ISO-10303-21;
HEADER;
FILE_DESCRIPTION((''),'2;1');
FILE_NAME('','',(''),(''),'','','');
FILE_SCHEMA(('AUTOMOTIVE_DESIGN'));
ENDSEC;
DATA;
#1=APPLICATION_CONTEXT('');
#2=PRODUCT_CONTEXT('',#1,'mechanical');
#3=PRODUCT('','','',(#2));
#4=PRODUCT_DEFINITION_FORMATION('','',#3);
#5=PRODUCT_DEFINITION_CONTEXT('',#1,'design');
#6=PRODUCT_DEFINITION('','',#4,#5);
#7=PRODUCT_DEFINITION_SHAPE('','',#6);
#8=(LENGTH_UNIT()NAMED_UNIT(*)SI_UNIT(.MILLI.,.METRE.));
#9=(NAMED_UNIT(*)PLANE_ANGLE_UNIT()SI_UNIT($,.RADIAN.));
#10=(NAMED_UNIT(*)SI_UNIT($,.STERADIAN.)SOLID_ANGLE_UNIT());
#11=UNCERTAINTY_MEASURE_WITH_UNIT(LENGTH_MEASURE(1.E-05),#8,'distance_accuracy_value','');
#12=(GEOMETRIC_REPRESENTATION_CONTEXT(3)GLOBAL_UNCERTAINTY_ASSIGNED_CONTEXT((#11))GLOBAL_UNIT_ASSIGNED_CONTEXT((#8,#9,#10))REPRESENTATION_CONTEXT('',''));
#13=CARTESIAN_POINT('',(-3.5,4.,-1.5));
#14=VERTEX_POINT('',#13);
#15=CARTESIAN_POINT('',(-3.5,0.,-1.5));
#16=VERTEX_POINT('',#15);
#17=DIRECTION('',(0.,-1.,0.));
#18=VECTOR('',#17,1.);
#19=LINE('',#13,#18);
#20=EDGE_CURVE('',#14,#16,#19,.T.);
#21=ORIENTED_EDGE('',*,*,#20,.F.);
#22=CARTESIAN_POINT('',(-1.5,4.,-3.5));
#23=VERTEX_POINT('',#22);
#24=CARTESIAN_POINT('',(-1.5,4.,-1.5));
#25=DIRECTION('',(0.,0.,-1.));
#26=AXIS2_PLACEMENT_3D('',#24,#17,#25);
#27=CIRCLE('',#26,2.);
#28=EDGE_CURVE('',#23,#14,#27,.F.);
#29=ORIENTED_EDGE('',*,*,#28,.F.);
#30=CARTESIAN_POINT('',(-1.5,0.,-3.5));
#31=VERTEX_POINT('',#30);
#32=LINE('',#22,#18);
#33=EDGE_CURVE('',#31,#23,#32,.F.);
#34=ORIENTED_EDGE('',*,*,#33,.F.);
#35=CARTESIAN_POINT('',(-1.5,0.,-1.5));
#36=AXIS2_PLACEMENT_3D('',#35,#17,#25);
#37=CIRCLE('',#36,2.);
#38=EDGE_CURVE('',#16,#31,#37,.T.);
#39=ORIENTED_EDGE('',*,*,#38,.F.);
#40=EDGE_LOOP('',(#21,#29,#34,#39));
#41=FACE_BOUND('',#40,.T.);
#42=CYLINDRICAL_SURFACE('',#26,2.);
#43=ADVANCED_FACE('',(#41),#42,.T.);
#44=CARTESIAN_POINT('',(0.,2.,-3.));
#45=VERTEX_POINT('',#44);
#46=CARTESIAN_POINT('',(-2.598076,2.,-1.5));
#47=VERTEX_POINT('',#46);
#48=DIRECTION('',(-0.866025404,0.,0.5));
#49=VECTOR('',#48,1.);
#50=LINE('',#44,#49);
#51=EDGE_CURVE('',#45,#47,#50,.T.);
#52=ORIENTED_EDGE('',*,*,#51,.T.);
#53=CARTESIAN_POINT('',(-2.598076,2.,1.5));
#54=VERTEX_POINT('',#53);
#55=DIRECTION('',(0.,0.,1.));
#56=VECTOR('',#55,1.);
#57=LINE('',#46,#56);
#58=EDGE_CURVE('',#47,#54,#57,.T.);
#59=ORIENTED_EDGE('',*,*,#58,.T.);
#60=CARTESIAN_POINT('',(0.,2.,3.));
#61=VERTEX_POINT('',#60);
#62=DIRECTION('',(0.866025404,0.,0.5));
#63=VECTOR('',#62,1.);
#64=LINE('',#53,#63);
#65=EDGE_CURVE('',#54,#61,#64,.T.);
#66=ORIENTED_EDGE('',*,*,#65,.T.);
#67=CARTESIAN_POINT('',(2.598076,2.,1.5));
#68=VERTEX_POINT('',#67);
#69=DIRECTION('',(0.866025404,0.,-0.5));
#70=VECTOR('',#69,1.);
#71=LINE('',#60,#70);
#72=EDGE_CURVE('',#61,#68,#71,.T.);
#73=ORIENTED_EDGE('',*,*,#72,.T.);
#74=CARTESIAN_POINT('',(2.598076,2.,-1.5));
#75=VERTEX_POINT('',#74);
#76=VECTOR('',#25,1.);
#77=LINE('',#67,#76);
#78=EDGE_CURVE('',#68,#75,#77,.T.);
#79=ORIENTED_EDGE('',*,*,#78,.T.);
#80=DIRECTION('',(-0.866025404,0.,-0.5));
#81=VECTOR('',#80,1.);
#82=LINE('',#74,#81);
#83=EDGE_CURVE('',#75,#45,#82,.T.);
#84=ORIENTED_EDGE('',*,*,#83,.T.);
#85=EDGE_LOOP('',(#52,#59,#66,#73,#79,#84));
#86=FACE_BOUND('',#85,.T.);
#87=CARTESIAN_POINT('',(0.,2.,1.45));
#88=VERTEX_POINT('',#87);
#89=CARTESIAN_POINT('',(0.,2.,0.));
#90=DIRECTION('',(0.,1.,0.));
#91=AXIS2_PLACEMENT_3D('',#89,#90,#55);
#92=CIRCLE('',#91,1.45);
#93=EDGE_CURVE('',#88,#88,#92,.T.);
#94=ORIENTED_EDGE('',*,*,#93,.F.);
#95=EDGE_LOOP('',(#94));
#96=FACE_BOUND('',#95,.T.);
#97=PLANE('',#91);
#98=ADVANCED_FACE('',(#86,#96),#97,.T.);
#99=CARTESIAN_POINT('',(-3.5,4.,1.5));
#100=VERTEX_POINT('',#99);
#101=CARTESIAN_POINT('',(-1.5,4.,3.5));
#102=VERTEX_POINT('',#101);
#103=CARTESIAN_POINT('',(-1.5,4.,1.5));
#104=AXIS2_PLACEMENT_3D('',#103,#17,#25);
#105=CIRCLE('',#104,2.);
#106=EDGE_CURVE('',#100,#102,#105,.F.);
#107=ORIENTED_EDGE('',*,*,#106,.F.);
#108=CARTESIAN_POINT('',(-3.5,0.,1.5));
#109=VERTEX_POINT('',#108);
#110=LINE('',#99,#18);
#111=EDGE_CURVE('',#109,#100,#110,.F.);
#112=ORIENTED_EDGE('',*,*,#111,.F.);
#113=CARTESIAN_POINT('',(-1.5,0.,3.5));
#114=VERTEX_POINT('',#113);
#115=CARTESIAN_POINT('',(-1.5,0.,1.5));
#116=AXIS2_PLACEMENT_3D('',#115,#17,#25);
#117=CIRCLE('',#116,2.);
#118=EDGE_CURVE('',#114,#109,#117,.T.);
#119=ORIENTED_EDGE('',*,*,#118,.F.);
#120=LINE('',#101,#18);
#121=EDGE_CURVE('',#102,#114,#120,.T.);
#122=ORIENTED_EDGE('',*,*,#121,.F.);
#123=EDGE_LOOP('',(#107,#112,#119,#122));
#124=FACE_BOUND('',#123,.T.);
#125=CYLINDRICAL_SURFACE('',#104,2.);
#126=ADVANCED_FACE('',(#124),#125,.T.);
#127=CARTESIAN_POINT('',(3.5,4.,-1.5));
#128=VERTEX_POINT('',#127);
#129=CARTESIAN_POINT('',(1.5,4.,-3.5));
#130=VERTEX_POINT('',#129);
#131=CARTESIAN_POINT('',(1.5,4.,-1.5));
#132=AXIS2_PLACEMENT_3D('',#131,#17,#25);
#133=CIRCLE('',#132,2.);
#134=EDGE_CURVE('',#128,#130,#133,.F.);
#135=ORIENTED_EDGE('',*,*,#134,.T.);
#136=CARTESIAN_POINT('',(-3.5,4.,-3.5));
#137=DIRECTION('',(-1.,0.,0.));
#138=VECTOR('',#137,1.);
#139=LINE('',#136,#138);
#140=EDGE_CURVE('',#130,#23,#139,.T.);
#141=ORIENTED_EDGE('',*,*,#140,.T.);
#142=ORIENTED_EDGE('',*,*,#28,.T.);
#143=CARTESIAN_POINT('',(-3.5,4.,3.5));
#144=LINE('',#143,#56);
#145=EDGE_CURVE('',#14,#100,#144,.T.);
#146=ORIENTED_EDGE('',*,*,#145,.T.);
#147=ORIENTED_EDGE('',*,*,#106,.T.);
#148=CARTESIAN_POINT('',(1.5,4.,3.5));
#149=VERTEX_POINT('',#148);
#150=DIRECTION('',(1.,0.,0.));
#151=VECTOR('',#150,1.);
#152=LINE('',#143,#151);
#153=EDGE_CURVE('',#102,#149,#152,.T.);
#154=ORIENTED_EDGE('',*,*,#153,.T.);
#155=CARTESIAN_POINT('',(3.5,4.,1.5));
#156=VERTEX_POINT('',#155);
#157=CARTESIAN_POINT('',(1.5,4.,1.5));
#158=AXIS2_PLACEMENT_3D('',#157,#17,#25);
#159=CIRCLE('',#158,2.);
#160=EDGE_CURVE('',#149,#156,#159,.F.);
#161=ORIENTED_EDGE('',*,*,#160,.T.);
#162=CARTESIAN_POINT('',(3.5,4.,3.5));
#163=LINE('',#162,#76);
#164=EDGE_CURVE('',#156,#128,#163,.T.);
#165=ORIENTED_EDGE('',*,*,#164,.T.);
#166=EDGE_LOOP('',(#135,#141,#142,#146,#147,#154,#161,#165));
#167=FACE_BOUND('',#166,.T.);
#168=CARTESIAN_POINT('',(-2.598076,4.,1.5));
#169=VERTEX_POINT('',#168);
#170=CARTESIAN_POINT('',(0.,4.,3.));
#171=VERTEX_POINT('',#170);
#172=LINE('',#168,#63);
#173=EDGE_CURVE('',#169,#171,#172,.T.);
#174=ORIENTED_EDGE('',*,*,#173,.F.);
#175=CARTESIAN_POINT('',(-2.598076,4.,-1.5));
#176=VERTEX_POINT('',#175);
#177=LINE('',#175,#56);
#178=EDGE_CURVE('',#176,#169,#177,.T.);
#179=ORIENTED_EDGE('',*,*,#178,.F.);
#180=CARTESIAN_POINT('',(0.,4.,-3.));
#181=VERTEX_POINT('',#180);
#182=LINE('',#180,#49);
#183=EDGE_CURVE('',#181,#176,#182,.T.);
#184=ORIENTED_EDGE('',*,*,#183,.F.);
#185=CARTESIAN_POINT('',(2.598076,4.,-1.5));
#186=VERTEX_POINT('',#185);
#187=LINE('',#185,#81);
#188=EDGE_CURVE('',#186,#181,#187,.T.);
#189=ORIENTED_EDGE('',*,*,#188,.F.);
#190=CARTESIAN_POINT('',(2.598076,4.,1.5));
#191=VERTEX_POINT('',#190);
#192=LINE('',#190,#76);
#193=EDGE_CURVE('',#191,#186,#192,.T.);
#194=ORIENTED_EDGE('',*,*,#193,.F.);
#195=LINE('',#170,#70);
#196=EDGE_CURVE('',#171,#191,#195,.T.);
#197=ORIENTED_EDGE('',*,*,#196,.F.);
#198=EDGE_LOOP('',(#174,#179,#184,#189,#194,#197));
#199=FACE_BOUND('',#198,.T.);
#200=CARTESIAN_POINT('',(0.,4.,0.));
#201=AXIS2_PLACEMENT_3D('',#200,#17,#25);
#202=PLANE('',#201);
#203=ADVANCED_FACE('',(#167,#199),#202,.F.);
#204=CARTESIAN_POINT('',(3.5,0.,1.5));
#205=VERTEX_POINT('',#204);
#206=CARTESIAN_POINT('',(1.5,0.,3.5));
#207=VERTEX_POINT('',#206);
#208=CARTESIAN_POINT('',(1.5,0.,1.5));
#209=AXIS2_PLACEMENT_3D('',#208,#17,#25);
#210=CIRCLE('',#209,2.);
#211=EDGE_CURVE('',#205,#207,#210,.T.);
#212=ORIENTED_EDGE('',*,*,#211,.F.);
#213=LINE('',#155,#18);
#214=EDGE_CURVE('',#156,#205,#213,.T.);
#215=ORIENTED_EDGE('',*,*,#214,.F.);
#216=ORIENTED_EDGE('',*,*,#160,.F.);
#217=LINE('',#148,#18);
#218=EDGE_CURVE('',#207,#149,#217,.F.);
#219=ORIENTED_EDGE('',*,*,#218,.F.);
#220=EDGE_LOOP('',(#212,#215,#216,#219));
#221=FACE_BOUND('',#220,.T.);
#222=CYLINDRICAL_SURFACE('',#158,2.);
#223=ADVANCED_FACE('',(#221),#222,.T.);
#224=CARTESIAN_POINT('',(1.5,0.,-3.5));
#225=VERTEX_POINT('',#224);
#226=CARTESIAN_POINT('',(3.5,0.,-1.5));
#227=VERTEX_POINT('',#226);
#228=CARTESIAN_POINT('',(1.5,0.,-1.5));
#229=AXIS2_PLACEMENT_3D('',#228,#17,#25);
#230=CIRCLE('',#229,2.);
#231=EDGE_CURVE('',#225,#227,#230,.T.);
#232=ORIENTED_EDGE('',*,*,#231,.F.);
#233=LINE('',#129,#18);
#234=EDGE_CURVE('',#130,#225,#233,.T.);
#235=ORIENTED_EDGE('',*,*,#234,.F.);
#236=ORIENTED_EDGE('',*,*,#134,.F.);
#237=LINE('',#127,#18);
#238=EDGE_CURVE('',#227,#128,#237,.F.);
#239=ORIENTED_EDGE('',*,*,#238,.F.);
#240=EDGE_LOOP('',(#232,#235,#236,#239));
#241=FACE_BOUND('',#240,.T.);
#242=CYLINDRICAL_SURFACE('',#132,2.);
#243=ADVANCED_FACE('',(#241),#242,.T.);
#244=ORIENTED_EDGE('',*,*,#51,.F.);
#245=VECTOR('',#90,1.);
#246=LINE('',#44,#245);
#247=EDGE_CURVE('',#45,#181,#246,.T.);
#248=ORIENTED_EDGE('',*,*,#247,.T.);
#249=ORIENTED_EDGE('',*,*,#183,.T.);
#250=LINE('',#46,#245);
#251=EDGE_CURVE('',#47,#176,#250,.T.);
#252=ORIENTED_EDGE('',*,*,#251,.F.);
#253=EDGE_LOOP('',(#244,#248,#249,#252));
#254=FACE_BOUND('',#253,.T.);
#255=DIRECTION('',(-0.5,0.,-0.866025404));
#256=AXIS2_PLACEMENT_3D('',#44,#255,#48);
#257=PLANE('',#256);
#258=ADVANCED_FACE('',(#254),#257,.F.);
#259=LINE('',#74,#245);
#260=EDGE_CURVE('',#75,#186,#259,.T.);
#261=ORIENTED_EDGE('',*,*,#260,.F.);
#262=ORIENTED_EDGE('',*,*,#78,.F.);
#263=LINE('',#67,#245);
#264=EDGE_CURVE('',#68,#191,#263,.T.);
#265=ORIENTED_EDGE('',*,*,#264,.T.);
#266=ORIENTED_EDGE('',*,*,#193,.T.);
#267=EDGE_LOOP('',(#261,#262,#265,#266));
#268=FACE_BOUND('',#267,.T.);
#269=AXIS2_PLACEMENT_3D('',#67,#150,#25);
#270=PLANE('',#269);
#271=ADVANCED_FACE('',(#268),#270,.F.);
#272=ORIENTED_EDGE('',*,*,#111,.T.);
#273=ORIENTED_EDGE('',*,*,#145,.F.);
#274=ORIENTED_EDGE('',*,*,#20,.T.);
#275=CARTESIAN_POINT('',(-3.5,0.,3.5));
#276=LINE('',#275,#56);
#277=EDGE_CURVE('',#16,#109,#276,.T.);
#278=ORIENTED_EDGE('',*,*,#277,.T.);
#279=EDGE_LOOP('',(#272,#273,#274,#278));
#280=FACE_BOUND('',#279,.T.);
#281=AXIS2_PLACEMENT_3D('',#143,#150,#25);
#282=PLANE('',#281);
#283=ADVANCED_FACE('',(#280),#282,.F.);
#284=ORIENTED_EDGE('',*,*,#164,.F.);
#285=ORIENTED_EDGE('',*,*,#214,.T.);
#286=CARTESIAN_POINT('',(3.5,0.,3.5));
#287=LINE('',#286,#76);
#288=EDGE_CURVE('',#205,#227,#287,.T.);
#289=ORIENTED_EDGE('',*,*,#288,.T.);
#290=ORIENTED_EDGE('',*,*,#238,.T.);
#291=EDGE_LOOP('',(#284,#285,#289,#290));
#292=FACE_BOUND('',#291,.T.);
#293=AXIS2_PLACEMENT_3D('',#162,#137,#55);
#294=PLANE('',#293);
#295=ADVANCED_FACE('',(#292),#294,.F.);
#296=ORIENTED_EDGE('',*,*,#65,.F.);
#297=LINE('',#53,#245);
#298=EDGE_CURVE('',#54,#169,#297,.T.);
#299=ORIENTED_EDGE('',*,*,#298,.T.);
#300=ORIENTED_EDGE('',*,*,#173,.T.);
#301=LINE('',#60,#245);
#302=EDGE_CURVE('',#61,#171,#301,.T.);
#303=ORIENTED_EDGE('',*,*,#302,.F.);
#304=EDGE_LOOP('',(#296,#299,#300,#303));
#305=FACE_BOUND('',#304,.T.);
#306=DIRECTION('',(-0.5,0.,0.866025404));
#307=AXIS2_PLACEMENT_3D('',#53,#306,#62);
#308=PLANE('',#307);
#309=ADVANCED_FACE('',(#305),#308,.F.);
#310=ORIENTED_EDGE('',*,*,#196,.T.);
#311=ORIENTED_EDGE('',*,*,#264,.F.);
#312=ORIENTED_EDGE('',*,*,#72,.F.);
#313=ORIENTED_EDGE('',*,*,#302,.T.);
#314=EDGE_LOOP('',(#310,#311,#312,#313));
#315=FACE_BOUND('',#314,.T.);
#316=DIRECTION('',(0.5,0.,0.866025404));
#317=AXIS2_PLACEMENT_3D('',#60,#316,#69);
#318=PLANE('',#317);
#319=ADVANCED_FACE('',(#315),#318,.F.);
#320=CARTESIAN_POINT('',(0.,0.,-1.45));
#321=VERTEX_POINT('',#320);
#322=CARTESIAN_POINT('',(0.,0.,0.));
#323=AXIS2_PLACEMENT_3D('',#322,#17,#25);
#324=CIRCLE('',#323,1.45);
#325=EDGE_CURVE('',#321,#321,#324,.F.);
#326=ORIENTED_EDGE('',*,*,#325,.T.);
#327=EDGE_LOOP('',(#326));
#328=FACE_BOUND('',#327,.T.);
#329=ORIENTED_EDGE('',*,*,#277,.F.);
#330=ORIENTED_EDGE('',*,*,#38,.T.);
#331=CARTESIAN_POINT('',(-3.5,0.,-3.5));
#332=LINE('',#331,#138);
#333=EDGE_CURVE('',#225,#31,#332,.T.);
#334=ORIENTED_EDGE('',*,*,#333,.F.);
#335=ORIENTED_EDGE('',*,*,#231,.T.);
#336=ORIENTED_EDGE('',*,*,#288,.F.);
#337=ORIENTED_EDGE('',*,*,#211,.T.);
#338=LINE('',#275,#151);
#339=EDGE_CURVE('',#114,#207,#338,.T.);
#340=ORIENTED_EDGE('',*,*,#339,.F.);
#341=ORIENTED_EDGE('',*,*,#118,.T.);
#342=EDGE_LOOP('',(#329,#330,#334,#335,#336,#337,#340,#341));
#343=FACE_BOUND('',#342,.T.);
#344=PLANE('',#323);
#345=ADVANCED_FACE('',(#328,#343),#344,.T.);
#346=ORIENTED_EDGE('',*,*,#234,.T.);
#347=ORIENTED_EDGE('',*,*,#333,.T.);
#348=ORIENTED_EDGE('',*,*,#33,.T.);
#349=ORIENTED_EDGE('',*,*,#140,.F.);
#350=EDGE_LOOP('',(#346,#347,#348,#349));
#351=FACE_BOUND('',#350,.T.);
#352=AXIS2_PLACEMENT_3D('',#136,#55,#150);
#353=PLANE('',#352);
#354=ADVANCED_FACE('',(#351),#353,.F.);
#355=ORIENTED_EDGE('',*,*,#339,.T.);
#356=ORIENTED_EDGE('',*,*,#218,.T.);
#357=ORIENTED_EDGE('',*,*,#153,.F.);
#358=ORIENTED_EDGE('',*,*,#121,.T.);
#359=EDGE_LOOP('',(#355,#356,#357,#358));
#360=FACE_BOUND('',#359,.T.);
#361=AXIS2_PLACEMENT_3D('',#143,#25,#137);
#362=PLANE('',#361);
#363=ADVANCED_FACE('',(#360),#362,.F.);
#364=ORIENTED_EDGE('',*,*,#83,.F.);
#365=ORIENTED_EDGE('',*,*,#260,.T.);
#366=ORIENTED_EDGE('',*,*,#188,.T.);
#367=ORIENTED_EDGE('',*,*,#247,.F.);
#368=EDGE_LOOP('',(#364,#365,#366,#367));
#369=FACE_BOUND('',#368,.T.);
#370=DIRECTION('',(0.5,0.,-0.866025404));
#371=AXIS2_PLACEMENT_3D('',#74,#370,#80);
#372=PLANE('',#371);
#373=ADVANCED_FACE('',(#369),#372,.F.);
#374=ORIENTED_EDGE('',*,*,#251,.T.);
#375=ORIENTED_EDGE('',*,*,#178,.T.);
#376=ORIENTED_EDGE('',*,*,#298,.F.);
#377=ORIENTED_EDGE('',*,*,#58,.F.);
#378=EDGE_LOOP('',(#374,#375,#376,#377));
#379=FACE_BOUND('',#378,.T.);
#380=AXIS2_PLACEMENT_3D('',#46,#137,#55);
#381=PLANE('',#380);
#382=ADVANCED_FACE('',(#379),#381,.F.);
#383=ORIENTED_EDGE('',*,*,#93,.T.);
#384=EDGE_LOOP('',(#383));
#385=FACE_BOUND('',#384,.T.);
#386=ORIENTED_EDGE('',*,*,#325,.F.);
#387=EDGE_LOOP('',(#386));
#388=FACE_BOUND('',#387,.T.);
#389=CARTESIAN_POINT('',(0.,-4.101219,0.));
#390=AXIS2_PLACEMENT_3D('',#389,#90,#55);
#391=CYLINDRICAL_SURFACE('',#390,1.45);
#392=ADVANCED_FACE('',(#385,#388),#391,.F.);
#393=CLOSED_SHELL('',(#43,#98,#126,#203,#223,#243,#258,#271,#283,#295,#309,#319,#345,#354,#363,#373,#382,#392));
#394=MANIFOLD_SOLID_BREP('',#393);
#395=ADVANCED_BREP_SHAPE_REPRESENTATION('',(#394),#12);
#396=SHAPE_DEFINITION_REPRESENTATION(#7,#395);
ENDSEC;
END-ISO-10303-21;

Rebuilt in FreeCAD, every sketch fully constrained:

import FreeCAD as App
import Part
import Sketcher

V = App.Vector
Q = App.Units.Quantity


def edges_at(feature, points):
    """Names of the edges that pass closest to the given points."""
    edges = feature.Shape.Edges
    near = lambda p: min(range(len(edges)), key=lambda i: edges[i].distToShape(Part.Vertex(*p))[0])
    return sorted({f"Edge{near(p) + 1}" for p in points})

doc = App.newDocument("Part")
body = doc.addObject("PartDesign::Body", "Body")

# Sketch on XZ plane
sketch1 = body.newObject("Sketcher::SketchObject", "Sketch")
sketch1.AttachmentSupport = (doc.getObject("XZ_Plane"), [""])
sketch1.MapMode = "FlatFace"
sketch1.addGeometry(Part.LineSegment(V(-4, -4, 0), V(-4, 4, 0)), False)
sketch1.addGeometry(Part.LineSegment(V(-4, 4, 0), V(4, 4, 0)), False)
sketch1.addGeometry(Part.LineSegment(V(4, 4, 0), V(4, -4, 0)), False)
sketch1.addGeometry(Part.LineSegment(V(4, -4, 0), V(-4, -4, 0)), False)
sketch1.addConstraint(Sketcher.Constraint("Coincident", 0, 2, 1, 1))
sketch1.addConstraint(Sketcher.Constraint("Coincident", 1, 2, 2, 1))
sketch1.addConstraint(Sketcher.Constraint("Coincident", 2, 2, 3, 1))
sketch1.addConstraint(Sketcher.Constraint("Coincident", 3, 2, 0, 1))
sketch1.addConstraint(Sketcher.Constraint("Vertical", 0))
sketch1.addConstraint(Sketcher.Constraint("Horizontal", 1))
sketch1.addConstraint(Sketcher.Constraint("Vertical", 2))
sketch1.addConstraint(Sketcher.Constraint("Horizontal", 3))
sketch1.addConstraint(Sketcher.Constraint("Symmetric", 0, 2, 2, 2, -1, 1))
sketch1.addConstraint(Sketcher.Constraint("Equal", 3, 0))
sketch1.addConstraint(Sketcher.Constraint("DistanceX", 1, 1, 1, 2, Q("7 mm")))
pad1 = body.newObject("PartDesign::Pad", "Pad")
pad1.Profile = sketch1
pad1.Length = 4
pad1.Reversed = True

# Sketch on XZ plane
sketch2 = body.newObject("Sketcher::SketchObject", "Sketch001")
sketch2.AttachmentSupport = (doc.getObject("XZ_Plane"), [""])
sketch2.MapMode = "FlatFace"
sketch2.AttachmentOffset = App.Placement(V(0, 0, -4), App.Rotation())
sketch2.addGeometry(Part.LineSegment(V(2.6, 1.5, 0), V(2.6, -1.5, 0)), False)
sketch2.addGeometry(Part.LineSegment(V(2.6, -1.5, 0), V(0, -3, 0)), False)
sketch2.addGeometry(Part.LineSegment(V(0, -3, 0), V(-2.6, -1.5, 0)), False)
sketch2.addGeometry(Part.LineSegment(V(-2.6, -1.5, 0), V(-2.6, 1.5, 0)), False)
sketch2.addGeometry(Part.LineSegment(V(-2.6, 1.5, 0), V(0, 3, 0)), False)
sketch2.addGeometry(Part.LineSegment(V(0, 3, 0), V(2.6, 1.5, 0)), False)
sketch2.addConstraint(Sketcher.Constraint("Coincident", 0, 2, 1, 1))
sketch2.addConstraint(Sketcher.Constraint("Coincident", 1, 2, 2, 1))
sketch2.addConstraint(Sketcher.Constraint("Coincident", 2, 2, 3, 1))
sketch2.addConstraint(Sketcher.Constraint("Coincident", 3, 2, 4, 1))
sketch2.addConstraint(Sketcher.Constraint("Coincident", 4, 2, 5, 1))
sketch2.addConstraint(Sketcher.Constraint("Coincident", 5, 2, 0, 1))
sketch2.addConstraint(Sketcher.Constraint("Vertical", 0))
sketch2.addConstraint(Sketcher.Constraint("Vertical", 3))
sketch2.addConstraint(Sketcher.Constraint("Symmetric", 0, 2, 3, 2, -1, 1))
sketch2.addConstraint(Sketcher.Constraint("Symmetric", 1, 2, 4, 2, -1, 1))
sketch2.addConstraint(Sketcher.Constraint("PointOnObject", 1, 2, -2))
sketch2.addConstraint(Sketcher.Constraint("Parallel", 2, 5))
sketch2.addConstraint(Sketcher.Constraint("Horizontal", 0, 2, 2, 2))
sketch2.addConstraint(Sketcher.Constraint("DistanceY", 0, 2, 0, 1, Q("3 mm")))
sketch2.addConstraint(Sketcher.Constraint("Angle", 1, Q("-150 deg")))
sketch2.addConstraint(Sketcher.Constraint("Distance", 1, Q("3 mm")))
pocket1 = body.newObject("PartDesign::Pocket", "Pocket")
pocket1.Profile = sketch2
pocket1.Length = 2
pocket1.Reversed = True

# Sketch on XZ plane
sketch3 = body.newObject("Sketcher::SketchObject", "Sketch002")
sketch3.AttachmentSupport = (doc.getObject("XZ_Plane"), [""])
sketch3.MapMode = "FlatFace"
sketch3.AttachmentOffset = App.Placement(V(0, 0, -2), App.Rotation())
sketch3.addGeometry(Part.Circle(V(0, 0, 0), V(0, 0, 1), 1.4), False)
sketch3.addConstraint(Sketcher.Constraint("Coincident", 0, 3, -1, 1))
sketch3.addConstraint(Sketcher.Constraint("Diameter", 0, Q("2.9 mm")))
pocket2 = body.newObject("PartDesign::Pocket", "Pocket001")
pocket2.Profile = sketch3
pocket2.Length = 2
pocket2.Reversed = True
doc.recompute()

fillet = body.newObject("PartDesign::Fillet", "Fillet")
fillet.Base = (pocket2, edges_at(pocket2, [
    (3.5, 2, 3.5),
    (-3.5, 2, 3.5),
    (-3.5, 2, -3.5),
    (3.5, 2, -3.5),
]))
fillet.Radius = 2

doc.recompute()
